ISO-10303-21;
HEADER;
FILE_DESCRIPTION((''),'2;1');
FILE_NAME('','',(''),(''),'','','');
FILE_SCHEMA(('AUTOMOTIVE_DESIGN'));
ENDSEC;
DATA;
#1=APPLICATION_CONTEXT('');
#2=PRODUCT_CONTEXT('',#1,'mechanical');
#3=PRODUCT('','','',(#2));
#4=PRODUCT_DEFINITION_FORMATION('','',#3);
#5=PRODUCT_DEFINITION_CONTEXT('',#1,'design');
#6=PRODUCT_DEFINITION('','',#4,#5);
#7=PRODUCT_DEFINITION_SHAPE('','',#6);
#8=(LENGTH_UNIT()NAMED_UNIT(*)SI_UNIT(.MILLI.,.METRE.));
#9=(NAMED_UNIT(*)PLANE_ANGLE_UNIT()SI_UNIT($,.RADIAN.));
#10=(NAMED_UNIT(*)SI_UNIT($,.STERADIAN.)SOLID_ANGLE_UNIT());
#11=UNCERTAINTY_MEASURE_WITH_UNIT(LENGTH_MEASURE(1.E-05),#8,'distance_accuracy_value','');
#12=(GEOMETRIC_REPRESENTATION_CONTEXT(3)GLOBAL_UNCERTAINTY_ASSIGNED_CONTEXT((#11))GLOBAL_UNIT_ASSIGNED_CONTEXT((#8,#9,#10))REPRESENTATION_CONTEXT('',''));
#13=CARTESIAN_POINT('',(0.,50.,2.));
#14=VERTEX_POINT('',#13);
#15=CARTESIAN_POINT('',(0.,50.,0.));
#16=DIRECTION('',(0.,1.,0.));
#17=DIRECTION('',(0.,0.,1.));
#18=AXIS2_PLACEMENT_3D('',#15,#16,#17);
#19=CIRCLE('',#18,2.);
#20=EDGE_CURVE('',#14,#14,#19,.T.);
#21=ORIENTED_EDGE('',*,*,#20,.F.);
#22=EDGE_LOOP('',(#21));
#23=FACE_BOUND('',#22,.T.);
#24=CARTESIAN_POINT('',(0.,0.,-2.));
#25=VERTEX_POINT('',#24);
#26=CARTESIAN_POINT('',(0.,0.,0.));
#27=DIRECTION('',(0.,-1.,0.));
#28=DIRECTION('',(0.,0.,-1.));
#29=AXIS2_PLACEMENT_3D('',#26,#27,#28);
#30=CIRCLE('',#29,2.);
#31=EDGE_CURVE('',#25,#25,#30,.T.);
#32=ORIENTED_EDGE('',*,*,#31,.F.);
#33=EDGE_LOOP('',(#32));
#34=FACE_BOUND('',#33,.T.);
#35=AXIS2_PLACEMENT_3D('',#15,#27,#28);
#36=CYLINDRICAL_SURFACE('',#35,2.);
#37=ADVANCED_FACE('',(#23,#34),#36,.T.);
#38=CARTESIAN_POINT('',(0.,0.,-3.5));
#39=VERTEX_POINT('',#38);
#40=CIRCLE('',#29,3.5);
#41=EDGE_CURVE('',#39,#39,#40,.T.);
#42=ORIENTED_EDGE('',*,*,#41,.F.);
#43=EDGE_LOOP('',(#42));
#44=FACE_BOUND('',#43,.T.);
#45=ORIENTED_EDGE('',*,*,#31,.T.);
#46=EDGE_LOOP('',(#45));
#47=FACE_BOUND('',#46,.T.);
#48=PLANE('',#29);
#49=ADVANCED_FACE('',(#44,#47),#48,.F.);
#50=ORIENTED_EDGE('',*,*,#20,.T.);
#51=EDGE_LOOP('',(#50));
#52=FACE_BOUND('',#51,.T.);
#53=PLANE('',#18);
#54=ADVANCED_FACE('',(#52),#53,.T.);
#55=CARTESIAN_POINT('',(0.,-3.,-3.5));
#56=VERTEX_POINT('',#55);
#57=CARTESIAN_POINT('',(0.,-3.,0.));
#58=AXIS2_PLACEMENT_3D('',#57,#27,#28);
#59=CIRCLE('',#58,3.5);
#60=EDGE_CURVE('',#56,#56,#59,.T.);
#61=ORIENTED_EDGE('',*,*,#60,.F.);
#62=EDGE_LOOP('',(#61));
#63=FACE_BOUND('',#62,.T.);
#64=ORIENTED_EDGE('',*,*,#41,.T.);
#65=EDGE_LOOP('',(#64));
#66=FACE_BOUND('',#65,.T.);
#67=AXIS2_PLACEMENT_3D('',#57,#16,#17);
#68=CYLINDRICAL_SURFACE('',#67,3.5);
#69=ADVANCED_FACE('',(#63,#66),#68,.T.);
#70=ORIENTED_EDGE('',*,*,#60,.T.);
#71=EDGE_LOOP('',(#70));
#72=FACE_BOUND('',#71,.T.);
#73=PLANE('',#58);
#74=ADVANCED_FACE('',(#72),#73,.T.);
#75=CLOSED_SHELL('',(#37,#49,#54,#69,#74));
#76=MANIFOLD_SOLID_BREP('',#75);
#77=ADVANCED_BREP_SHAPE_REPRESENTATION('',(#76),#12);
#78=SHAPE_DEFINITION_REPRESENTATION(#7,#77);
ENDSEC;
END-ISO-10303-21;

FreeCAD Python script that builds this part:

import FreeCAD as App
import Part
import Sketcher

doc = App.newDocument("Part")
body = doc.addObject("PartDesign::Body", "Body")

# Sketch on XZ plane
sketch1 = body.newObject("Sketcher::SketchObject", "Sketch")
sketch1.AttachmentSupport = (doc.getObject("XZ_Plane"), [""])
sketch1.MapMode = "FlatFace"
sketch1.addGeometry(Part.Circle(App.Vector(0, 0, 0), App.Vector(0, 0, 1), 2), False)
sketch1.addConstraint([
    Sketcher.Constraint("Coincident", 0, 3, -1, 1),
    Sketcher.Constraint("Diameter", 0, 4.0),
])
pad1 = body.newObject("PartDesign::Pad", "Pad")
pad1.Profile = sketch1
pad1.Length = 50
pad1.Reversed = True

# Sketch on XZ plane
sketch2 = body.newObject("Sketcher::SketchObject", "Sketch001")
sketch2.AttachmentSupport = (doc.getObject("XZ_Plane"), [""])
sketch2.MapMode = "FlatFace"
sketch2.addGeometry(Part.Circle(App.Vector(0, 0, 0), App.Vector(0, 0, 1), 3.5), False)
sketch2.addConstraint([
    Sketcher.Constraint("Coincident", 0, 3, -1, 1),
    Sketcher.Constraint("Diameter", 0, 7.0),
])
pad2 = body.newObject("PartDesign::Pad", "Pad001")
pad2.Profile = sketch2
pad2.Length = 3

doc.recompute()
